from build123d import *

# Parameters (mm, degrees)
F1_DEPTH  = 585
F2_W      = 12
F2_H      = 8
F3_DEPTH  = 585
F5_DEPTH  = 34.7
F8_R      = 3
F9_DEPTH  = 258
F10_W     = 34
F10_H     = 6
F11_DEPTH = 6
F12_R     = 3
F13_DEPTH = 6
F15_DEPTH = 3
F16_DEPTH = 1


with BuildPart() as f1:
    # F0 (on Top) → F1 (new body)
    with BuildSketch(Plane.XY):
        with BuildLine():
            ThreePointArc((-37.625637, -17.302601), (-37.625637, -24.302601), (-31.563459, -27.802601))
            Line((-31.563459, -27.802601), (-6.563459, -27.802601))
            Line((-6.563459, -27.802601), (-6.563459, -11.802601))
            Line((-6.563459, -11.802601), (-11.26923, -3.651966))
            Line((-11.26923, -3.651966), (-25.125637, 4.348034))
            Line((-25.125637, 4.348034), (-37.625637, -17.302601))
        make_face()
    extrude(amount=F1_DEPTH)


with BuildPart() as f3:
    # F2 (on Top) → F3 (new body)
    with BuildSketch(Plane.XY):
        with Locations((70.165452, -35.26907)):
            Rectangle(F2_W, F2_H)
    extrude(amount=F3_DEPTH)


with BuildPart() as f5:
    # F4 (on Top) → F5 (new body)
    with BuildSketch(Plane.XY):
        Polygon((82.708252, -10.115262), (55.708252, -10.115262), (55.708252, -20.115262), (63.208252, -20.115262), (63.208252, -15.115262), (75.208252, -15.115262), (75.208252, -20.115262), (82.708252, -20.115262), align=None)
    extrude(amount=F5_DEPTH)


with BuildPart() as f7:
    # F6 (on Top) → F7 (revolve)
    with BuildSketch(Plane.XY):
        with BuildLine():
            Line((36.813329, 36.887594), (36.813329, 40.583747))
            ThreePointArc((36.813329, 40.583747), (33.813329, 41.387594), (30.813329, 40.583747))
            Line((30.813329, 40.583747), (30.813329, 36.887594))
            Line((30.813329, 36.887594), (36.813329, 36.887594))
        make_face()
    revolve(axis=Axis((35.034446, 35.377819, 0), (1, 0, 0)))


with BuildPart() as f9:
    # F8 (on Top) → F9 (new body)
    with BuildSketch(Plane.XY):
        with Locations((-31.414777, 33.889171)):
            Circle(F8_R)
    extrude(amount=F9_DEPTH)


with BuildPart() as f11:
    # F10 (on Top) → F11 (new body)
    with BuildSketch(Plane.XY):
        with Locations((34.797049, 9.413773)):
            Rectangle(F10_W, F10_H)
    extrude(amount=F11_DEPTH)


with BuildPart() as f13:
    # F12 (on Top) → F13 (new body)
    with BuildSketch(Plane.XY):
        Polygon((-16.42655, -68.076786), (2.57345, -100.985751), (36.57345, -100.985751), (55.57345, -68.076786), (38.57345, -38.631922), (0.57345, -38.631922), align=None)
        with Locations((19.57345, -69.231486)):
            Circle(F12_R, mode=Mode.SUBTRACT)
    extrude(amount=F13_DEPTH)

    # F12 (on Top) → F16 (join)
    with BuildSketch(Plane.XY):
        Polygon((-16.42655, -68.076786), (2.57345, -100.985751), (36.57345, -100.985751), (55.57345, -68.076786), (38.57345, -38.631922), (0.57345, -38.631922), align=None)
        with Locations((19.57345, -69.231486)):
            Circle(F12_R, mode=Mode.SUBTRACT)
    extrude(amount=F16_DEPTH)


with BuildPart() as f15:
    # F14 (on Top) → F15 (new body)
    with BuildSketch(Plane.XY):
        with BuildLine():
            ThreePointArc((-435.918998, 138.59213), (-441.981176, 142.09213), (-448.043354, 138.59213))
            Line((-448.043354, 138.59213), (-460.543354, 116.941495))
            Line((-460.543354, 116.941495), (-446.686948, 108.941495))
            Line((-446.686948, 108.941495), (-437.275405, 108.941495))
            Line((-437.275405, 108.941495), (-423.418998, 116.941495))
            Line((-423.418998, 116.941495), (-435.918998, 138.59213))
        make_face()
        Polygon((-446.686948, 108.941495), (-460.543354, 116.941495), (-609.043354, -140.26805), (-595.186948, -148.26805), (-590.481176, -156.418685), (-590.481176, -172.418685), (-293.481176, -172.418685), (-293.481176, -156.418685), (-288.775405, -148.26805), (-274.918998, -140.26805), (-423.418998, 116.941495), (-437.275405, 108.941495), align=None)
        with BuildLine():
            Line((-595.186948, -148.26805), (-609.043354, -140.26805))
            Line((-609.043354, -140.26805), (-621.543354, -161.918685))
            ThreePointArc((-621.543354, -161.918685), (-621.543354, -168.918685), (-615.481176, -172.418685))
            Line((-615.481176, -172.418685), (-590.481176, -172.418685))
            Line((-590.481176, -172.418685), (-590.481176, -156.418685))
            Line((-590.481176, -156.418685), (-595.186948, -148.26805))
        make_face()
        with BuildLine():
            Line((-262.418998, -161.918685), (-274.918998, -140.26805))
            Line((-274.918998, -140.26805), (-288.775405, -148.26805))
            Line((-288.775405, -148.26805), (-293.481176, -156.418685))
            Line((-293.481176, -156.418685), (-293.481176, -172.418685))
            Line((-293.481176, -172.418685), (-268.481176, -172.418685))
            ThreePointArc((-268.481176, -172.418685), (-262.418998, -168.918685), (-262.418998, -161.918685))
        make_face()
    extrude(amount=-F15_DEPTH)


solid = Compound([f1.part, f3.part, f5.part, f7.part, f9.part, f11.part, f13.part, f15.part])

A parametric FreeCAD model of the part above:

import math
import FreeCAD as App
import Part
import Sketcher
from FreeCAD import Vector
Q = App.Units.Quantity

doc = App.newDocument("Part")
body = doc.addObject("PartDesign::Body", "Body")

# Sketch on XY plane
sketch1 = doc.addObject("Sketcher::SketchObject", "Sketch")
body.addObject(sketch1)
sketch1.AttachmentSupport = (doc.XY_Plane, [""])
sketch1.MapMode = "FlatFace"
sketch1.addGeometry(Part.ArcOfCircle(Part.Circle(Vector(-32, -21, 0), Vector(0, 0, 1), 7), math.radians(150), math.radians(270)), False)
sketch1.addGeometry(Part.LineSegment(Vector(-32, -28, 0), Vector(-7, -28, 0)), False)
sketch1.addGeometry(Part.LineSegment(Vector(-7, -28, 0), Vector(-7, -12, 0)), False)
sketch1.addGeometry(Part.LineSegment(Vector(-7, -12, 0), Vector(-11, -4, 0)), False)
sketch1.addGeometry(Part.LineSegment(Vector(-11, -4, 0), Vector(-25, 4, 0)), False)
sketch1.addGeometry(Part.LineSegment(Vector(-25, 4, 0), Vector(-38, -17, 0)), False)
sketch1.addConstraint(Sketcher.Constraint("Tangent", 0, 2, 1, 1))
sketch1.addConstraint(Sketcher.Constraint("Coincident", 1, 2, 2, 1))
sketch1.addConstraint(Sketcher.Constraint("Coincident", 2, 2, 3, 1))
sketch1.addConstraint(Sketcher.Constraint("Coincident", 3, 2, 4, 1))
sketch1.addConstraint(Sketcher.Constraint("Coincident", 4, 2, 5, 1))
sketch1.addConstraint(Sketcher.Constraint("Tangent", 5, 2, 0, 1))
sketch1.addConstraint(Sketcher.Constraint("Horizontal", 1))
sketch1.addConstraint(Sketcher.Constraint("Vertical", 2))
sketch1.addConstraint(Sketcher.Constraint("Perpendicular", 4, 5))
sketch1.addConstraint(Sketcher.Constraint("Radius", 0, Q("7 mm")))
sketch1.addConstraint(Sketcher.Constraint("DistanceX", 1, 1, 1, 2, Q("25 mm")))
sketch1.addConstraint(Sketcher.Constraint("DistanceY", 2, 1, 2, 2, Q("16 mm")))
sketch1.addConstraint(Sketcher.Constraint("Angle", 3, Q("119.999998 deg")))
sketch1.addConstraint(Sketcher.Constraint("Angle", 4, Q("150.000001 deg")))
sketch1.addConstraint(Sketcher.Constraint("Distance", 4, Q("16 mm")))
sketch1.addConstraint(Sketcher.Constraint("DistanceY", 0, 3, -1, 1, Q("20.802601 mm")))
sketch1.addConstraint(Sketcher.Constraint("DistanceX", 0, 3, -1, 1, Q("31.563459 mm")))
pad1 = doc.addObject("PartDesign::Pad", "Pad")
body.addObject(pad1)
pad1.Profile = sketch1
pad1.Length = 585
body2 = doc.addObject("PartDesign::Body", "Body001")

# Sketch on XY plane
sketch2 = doc.addObject("Sketcher::SketchObject", "Sketch001")
body2.addObject(sketch2)
sketch2.AttachmentSupport = (doc.getObject("XY_Plane001"), [""])
sketch2.MapMode = "FlatFace"
sketch2.addGeometry(Part.LineSegment(Vector(64, -31, 0), Vector(64, -39, 0)), False)
sketch2.addGeometry(Part.LineSegment(Vector(64, -39, 0), Vector(76, -39, 0)), False)
sketch2.addGeometry(Part.LineSegment(Vector(76, -39, 0), Vector(76, -31, 0)), False)
sketch2.addGeometry(Part.LineSegment(Vector(76, -31, 0), Vector(64, -31, 0)), False)
sketch2.addConstraint(Sketcher.Constraint("Coincident", 0, 2, 1, 1))
sketch2.addConstraint(Sketcher.Constraint("Coincident", 1, 2, 2, 1))
sketch2.addConstraint(Sketcher.Constraint("Coincident", 2, 2, 3, 1))
sketch2.addConstraint(Sketcher.Constraint("Coincident", 3, 2, 0, 1))
sketch2.addConstraint(Sketcher.Constraint("Vertical", 0))
sketch2.addConstraint(Sketcher.Constraint("Horizontal", 1))
sketch2.addConstraint(Sketcher.Constraint("Vertical", 2))
sketch2.addConstraint(Sketcher.Constraint("Horizontal", 3))
sketch2.addConstraint(Sketcher.Constraint("DistanceX", 1, 1, 1, 2, Q("12 mm")))
sketch2.addConstraint(Sketcher.Constraint("DistanceY", 0, 2, 0, 1, Q("8 mm")))
sketch2.addConstraint(Sketcher.Constraint("DistanceX", -1, 1, 0, 2, Q("64.165452 mm")))
sketch2.addConstraint(Sketcher.Constraint("DistanceY", 0, 2, -1, 1, Q("39.26907 mm")))
pad2 = doc.addObject("PartDesign::Pad", "Pad001")
body2.addObject(pad2)
pad2.Profile = sketch2
pad2.Length = 585
body3 = doc.addObject("PartDesign::Body", "Body002")

# Sketch on XY plane
sketch3 = doc.addObject("Sketcher::SketchObject", "Sketch002")
body3.addObject(sketch3)
sketch3.AttachmentSupport = (doc.getObject("XY_Plane002"), [""])
sketch3.MapMode = "FlatFace"
sketch3.addGeometry(Part.LineSegment(Vector(83, -10, 0), Vector(56, -10, 0)), False)
sketch3.addGeometry(Part.LineSegment(Vector(56, -10, 0), Vector(56, -20, 0)), False)
sketch3.addGeometry(Part.LineSegment(Vector(56, -20, 0), Vector(63, -20, 0)), False)
sketch3.addGeometry(Part.LineSegment(Vector(63, -20, 0), Vector(63, -15, 0)), False)
sketch3.addGeometry(Part.LineSegment(Vector(63, -15, 0), Vector(75, -15, 0)), False)
sketch3.addGeometry(Part.LineSegment(Vector(75, -15, 0), Vector(75, -20, 0)), False)
sketch3.addGeometry(Part.LineSegment(Vector(75, -20, 0), Vector(83, -20, 0)), False)
sketch3.addGeometry(Part.LineSegment(Vector(83, -20, 0), Vector(83, -10, 0)), False)
sketch3.addConstraint(Sketcher.Constraint("Coincident", 0, 2, 1, 1))
sketch3.addConstraint(Sketcher.Constraint("Coincident", 1, 2, 2, 1))
sketch3.addConstraint(Sketcher.Constraint("Coincident", 2, 2, 3, 1))
sketch3.addConstraint(Sketcher.Constraint("Coincident", 3, 2, 4, 1))
sketch3.addConstraint(Sketcher.Constraint("Coincident", 4, 2, 5, 1))
sketch3.addConstraint(Sketcher.Constraint("Coincident", 5, 2, 6, 1))
sketch3.addConstraint(Sketcher.Constraint("Coincident", 6, 2, 7, 1))
sketch3.addConstraint(Sketcher.Constraint("Coincident", 7, 2, 0, 1))
sketch3.addConstraint(Sketcher.Constraint("Horizontal", 0))
sketch3.addConstraint(Sketcher.Constraint("Vertical", 1))
sketch3.addConstraint(Sketcher.Constraint("Horizontal", 2))
sketch3.addConstraint(Sketcher.Constraint("Vertical", 3))
sketch3.addConstraint(Sketcher.Constraint("Horizontal", 4))
sketch3.addConstraint(Sketcher.Constraint("Vertical", 5))
sketch3.addConstraint(Sketcher.Constraint("Horizontal", 6))
sketch3.addConstraint(Sketcher.Constraint("Vertical", 7))
sketch3.addConstraint(Sketcher.Constraint("Horizontal", 2, 2, 5, 2))
sketch3.addConstraint(Sketcher.Constraint("Equal", 2, 6))
sketch3.addConstraint(Sketcher.Constraint("DistanceX", 0, 2, 0, 1, Q("27 mm")))
sketch3.addConstraint(Sketcher.Constraint("DistanceX", 4, 1, 4, 2, Q("12 mm")))
sketch3.addConstraint(Sketcher.Constraint("DistanceY", 1, 2, 1, 1, Q("10 mm")))
sketch3.addConstraint(Sketcher.Constraint("DistanceY", 3, 1, 3, 2, Q("5 mm")))
sketch3.addConstraint(Sketcher.Constraint("DistanceX", -1, 1, 4, 2, Q("75.208252 mm")))
sketch3.addConstraint(Sketcher.Constraint("DistanceY", 0, 2, -1, 1, Q("10.115262 mm")))
pad3 = doc.addObject("PartDesign::Pad", "Pad002")
body3.addObject(pad3)
pad3.Profile = sketch3
pad3.Length = 34.7
body4 = doc.addObject("PartDesign::Body", "Body003")

# Sketch on XY plane
sketch4 = doc.addObject("Sketcher::SketchObject", "Sketch003")
body4.addObject(sketch4)
sketch4.AttachmentSupport = (doc.getObject("XY_Plane003"), [""])
sketch4.MapMode = "FlatFace"
sketch4.addGeometry(Part.LineSegment(Vector(36.8, 36.9, 0), Vector(36.8, 40.6, 0)), False)
sketch4.addGeometry(Part.ArcOfCircle(Part.Circle(Vector(33.8, 35.4, 0), Vector(0, 0, 1), 6), math.radians(60), math.radians(120)), False)
sketch4.addGeometry(Part.LineSegment(Vector(30.8, 40.6, 0), Vector(30.8, 36.9, 0)), False)
sketch4.addGeometry(Part.LineSegment(Vector(30.8, 36.9, 0), Vector(36.8, 36.9, 0)), False)
sketch4.addGeometry(Part.LineSegment(Vector(30.8, 35.4, 0), Vector(36.8, 35.4, 0)), True)  # axis
sketch4.addConstraint(Sketcher.Constraint("Coincident", 0, 2, 1, 1))
sketch4.addConstraint(Sketcher.Constraint("Coincident", 1, 2, 2, 1))
sketch4.addConstraint(Sketcher.Constraint("Coincident", 2, 2, 3, 1))
sketch4.addConstraint(Sketcher.Constraint("Coincident", 3, 2, 0, 1))
sketch4.addConstraint(Sketcher.Constraint("Vertical", 0))
sketch4.addConstraint(Sketcher.Constraint("Vertical", 2))
sketch4.addConstraint(Sketcher.Constraint("Horizontal", 3))
sketch4.addConstraint(Sketcher.Constraint("Horizontal", 4))
sketch4.addConstraint(Sketcher.Constraint("Horizontal", 0, 2, 1, 2))
sketch4.addConstraint(Sketcher.Constraint("Vertical", 2, 2, 4, 1))
sketch4.addConstraint(Sketcher.Constraint("Vertical", 3, 2, 4, 2))
sketch4.addConstraint(Sketcher.Constraint("DistanceX", 3, 1, 3, 2, Q("6 mm")))
sketch4.addConstraint(Sketcher.Constraint("Radius", 1, Q("6.000004 mm")))
sketch4.addConstraint(Sketcher.Constraint("DistanceY", 0, 1, 0, 2, Q("3.696153 mm")))
sketch4.addConstraint(Sketcher.Constraint("DistanceX", -1, 1, 1, 3, Q("33.813329 mm")))
sketch4.addConstraint(Sketcher.Constraint("DistanceY", -1, 1, 1, 3, Q("35.38759 mm")))
sketch4.addConstraint(Sketcher.Constraint("DistanceY", -1, 1, 4, 1, Q("35.377819 mm")))
revolution = doc.addObject("PartDesign::Revolution", "Revolution")
body4.addObject(revolution)
revolution.Profile = sketch4
revolution.ReferenceAxis = (sketch4, ["Axis0"])
revolution.Angle = 360
body5 = doc.addObject("PartDesign::Body", "Body004")

# Sketch on XY plane
sketch5 = doc.addObject("Sketcher::SketchObject", "Sketch004")
body5.addObject(sketch5)
sketch5.AttachmentSupport = (doc.getObject("XY_Plane004"), [""])
sketch5.MapMode = "FlatFace"
sketch5.addGeometry(Part.Circle(Vector(-31.4, 33.9, 0), Vector(0, 0, 1), 3), False)
sketch5.addConstraint(Sketcher.Constraint("Diameter", 0, Q("6 mm")))
sketch5.addConstraint(Sketcher.Constraint("DistanceY", -1, 1, 0, 3, Q("33.889171 mm")))
sketch5.addConstraint(Sketcher.Constraint("DistanceX", 0, 3, -1, 1, Q("31.414777 mm")))
pad4 = doc.addObject("PartDesign::Pad", "Pad003")
body5.addObject(pad4)
pad4.Profile = sketch5
pad4.Length = 258
body6 = doc.addObject("PartDesign::Body", "Body005")

# Sketch on XY plane
sketch6 = doc.addObject("Sketcher::SketchObject", "Sketch005")
body6.addObject(sketch6)
sketch6.AttachmentSupport = (doc.getObject("XY_Plane005"), [""])
sketch6.MapMode = "FlatFace"
sketch6.addGeometry(Part.LineSegment(Vector(18, 12, 0), Vector(18, 6, 0)), False)
sketch6.addGeometry(Part.LineSegment(Vector(18, 6, 0), Vector(52, 6, 0)), False)
sketch6.addGeometry(Part.LineSegment(Vector(52, 6, 0), Vector(52, 12, 0)), False)
sketch6.addGeometry(Part.LineSegment(Vector(52, 12, 0), Vector(18, 12, 0)), False)
sketch6.addConstraint(Sketcher.Constraint("Coincident", 0, 2, 1, 1))
sketch6.addConstraint(Sketcher.Constraint("Coincident", 1, 2, 2, 1))
sketch6.addConstraint(Sketcher.Constraint("Coincident", 2, 2, 3, 1))
sketch6.addConstraint(Sketcher.Constraint("Coincident", 3, 2, 0, 1))
sketch6.addConstraint(Sketcher.Constraint("Vertical", 0))
sketch6.addConstraint(Sketcher.Constraint("Horizontal", 1))
sketch6.addConstraint(Sketcher.Constraint("Vertical", 2))
sketch6.addConstraint(Sketcher.Constraint("Horizontal", 3))
sketch6.addConstraint(Sketcher.Constraint("DistanceX", 1, 1, 1, 2, Q("34 mm")))
sketch6.addConstraint(Sketcher.Constraint("DistanceY", 0, 2, 0, 1, Q("6 mm")))
sketch6.addConstraint(Sketcher.Constraint("DistanceX", -1, 1, 0, 2, Q("17.797049 mm")))
sketch6.addConstraint(Sketcher.Constraint("DistanceY", -1, 1, 0, 2, Q("6.413773 mm")))
pad5 = doc.addObject("PartDesign::Pad", "Pad004")
body6.addObject(pad5)
pad5.Profile = sketch6
pad5.Length = 6
body7 = doc.addObject("PartDesign::Body", "Body006")

# Sketch on XY plane
sketch7 = doc.addObject("Sketcher::SketchObject", "Sketch006")
body7.addObject(sketch7)
sketch7.AttachmentSupport = (doc.getObject("XY_Plane006"), [""])
sketch7.MapMode = "FlatFace"
sketch7.addGeometry(Part.LineSegment(Vector(-16.4, -68.1, 0), Vector(2.6, -101, 0)), False)
sketch7.addGeometry(Part.LineSegment(Vector(2.6, -101, 0), Vector(36.6, -101, 0)), False)
sketch7.addGeometry(Part.LineSegment(Vector(36.6, -101, 0), Vector(55.6, -68.1, 0)), False)
sketch7.addGeometry(Part.LineSegment(Vector(55.6, -68.1, 0), Vector(38.6, -38.6, 0)), False)
sketch7.addGeometry(Part.LineSegment(Vector(38.6, -38.6, 0), Vector(0.6, -38.6, 0)), False)
sketch7.addGeometry(Part.LineSegment(Vector(0.6, -38.6, 0), Vector(-16.4, -68.1, 0)), False)
sketch7.addGeometry(Part.Circle(Vector(19.6, -69.2, 0), Vector(0, 0, 1), 3), False)
sketch7.addConstraint(Sketcher.Constraint("Coincident", 0, 2, 1, 1))
sketch7.addConstraint(Sketcher.Constraint("Coincident", 1, 2, 2, 1))
sketch7.addConstraint(Sketcher.Constraint("Coincident", 2, 2, 3, 1))
sketch7.addConstraint(Sketcher.Constraint("Coincident", 3, 2, 4, 1))
sketch7.addConstraint(Sketcher.Constraint("Coincident", 4, 2, 5, 1))
sketch7.addConstraint(Sketcher.Constraint("Coincident", 5, 2, 0, 1))
sketch7.addConstraint(Sketcher.Constraint("Horizontal", 1))
sketch7.addConstraint(Sketcher.Constraint("Horizontal", 4))
sketch7.addConstraint(Sketcher.Constraint("Parallel", 0, 3))
sketch7.addConstraint(Sketcher.Constraint("Parallel", 2, 5))
sketch7.addConstraint(Sketcher.Constraint("Horizontal", 2, 2, 5, 2))
sketch7.addConstraint(Sketcher.Constraint("Equal", 0, 2))
sketch7.addConstraint(Sketcher.Constraint("Diameter", 6, Q("6 mm")))
sketch7.addConstraint(Sketcher.Constraint("DistanceX", 1, 1, 1, 2, Q("34 mm")))
sketch7.addConstraint(Sketcher.Constraint("DistanceX", 4, 2, 4, 1, Q("38 mm")))
sketch7.addConstraint(Sketcher.Constraint("Angle", 0, Q("-60 deg")))
sketch7.addConstraint(Sketcher.Constraint("Distance", 0, Q("38 mm")))
sketch7.addConstraint(Sketcher.Constraint("DistanceX", 0, 2, 6, 3, Q("17 mm")))
sketch7.addConstraint(Sketcher.Constraint("DistanceY", 6, 3, 2, 2, Q("1.1547 mm")))
sketch7.addConstraint(Sketcher.Constraint("DistanceX", -1, 1, 6, 3, Q("19.57345 mm")))
sketch7.addConstraint(Sketcher.Constraint("DistanceY", 0, 2, -1, 1, Q("100.985751 mm")))
pad6 = doc.addObject("PartDesign::Pad", "Pad005")
body7.addObject(pad6)
pad6.Profile = sketch7
pad6.Length = 6

# Sketch on XY plane
sketch8 = doc.addObject("Sketcher::SketchObject", "Sketch007")
body7.addObject(sketch8)
sketch8.AttachmentSupport = (doc.getObject("XY_Plane006"), [""])
sketch8.MapMode = "FlatFace"
sketch8.addGeometry(Part.LineSegment(Vector(-16.4, -68.1, 0), Vector(2.6, -101, 0)), False)
sketch8.addGeometry(Part.LineSegment(Vector(2.6, -101, 0), Vector(36.6, -101, 0)), False)
sketch8.addGeometry(Part.LineSegment(Vector(36.6, -101, 0), Vector(55.6, -68.1, 0)), False)
sketch8.addGeometry(Part.LineSegment(Vector(55.6, -68.1, 0), Vector(38.6, -38.6, 0)), False)
sketch8.addGeometry(Part.LineSegment(Vector(38.6, -38.6, 0), Vector(0.6, -38.6, 0)), False)
sketch8.addGeometry(Part.LineSegment(Vector(0.6, -38.6, 0), Vector(-16.4, -68.1, 0)), False)
sketch8.addGeometry(Part.Circle(Vector(19.6, -69.2, 0), Vector(0, 0, 1), 3), False)
sketch8.addConstraint(Sketcher.Constraint("Coincident", 0, 2, 1, 1))
sketch8.addConstraint(Sketcher.Constraint("Coincident", 1, 2, 2, 1))
sketch8.addConstraint(Sketcher.Constraint("Coincident", 2, 2, 3, 1))
sketch8.addConstraint(Sketcher.Constraint("Coincident", 3, 2, 4, 1))
sketch8.addConstraint(Sketcher.Constraint("Coincident", 4, 2, 5, 1))
sketch8.addConstraint(Sketcher.Constraint("Coincident", 5, 2, 0, 1))
sketch8.addConstraint(Sketcher.Constraint("Horizontal", 1))
sketch8.addConstraint(Sketcher.Constraint("Horizontal", 4))
sketch8.addConstraint(Sketcher.Constraint("Parallel", 0, 3))
sketch8.addConstraint(Sketcher.Constraint("Parallel", 2, 5))
sketch8.addConstraint(Sketcher.Constraint("Horizontal", 2, 2, 5, 2))
sketch8.addConstraint(Sketcher.Constraint("Equal", 0, 2))
sketch8.addConstraint(Sketcher.Constraint("Diameter", 6, Q("6 mm")))
sketch8.addConstraint(Sketcher.Constraint("DistanceX", 1, 1, 1, 2, Q("34 mm")))
sketch8.addConstraint(Sketcher.Constraint("DistanceX", 4, 2, 4, 1, Q("38 mm")))
sketch8.addConstraint(Sketcher.Constraint("Angle", 0, Q("-60 deg")))
sketch8.addConstraint(Sketcher.Constraint("Distance", 0, Q("38 mm")))
sketch8.addConstraint(Sketcher.Constraint("DistanceX", 0, 2, 6, 3, Q("17 mm")))
sketch8.addConstraint(Sketcher.Constraint("DistanceY", 6, 3, 2, 2, Q("1.1547 mm")))
sketch8.addConstraint(Sketcher.Constraint("DistanceX", -1, 1, 6, 3, Q("19.57345 mm")))
sketch8.addConstraint(Sketcher.Constraint("DistanceY", 0, 2, -1, 1, Q("100.985751 mm")))
pad7 = doc.addObject("PartDesign::Pad", "Pad006")
body7.addObject(pad7)
pad7.Profile = sketch8
pad7.Length = 1
body8 = doc.addObject("PartDesign::Body", "Body007")

# Sketch on XY plane
sketch9 = doc.addObject("Sketcher::SketchObject", "Sketch008")
body8.addObject(sketch9)
sketch9.AttachmentSupport = (doc.getObject("XY_Plane007"), [""])
sketch9.MapMode = "FlatFace"
sketch9.addGeometry(Part.ArcOfCircle(Part.Circle(Vector(-442, 135, 0), Vector(0, 0, 1), 7), math.radians(30), math.radians(150)), False)
sketch9.addGeometry(Part.LineSegment(Vector(-448, 139, 0), Vector(-461, 117, 0)), False)
sketch9.addGeometry(Part.LineSegment(Vector(-461, 117, 0), Vector(-609, -140, 0)), False)
sketch9.addGeometry(Part.LineSegment(Vector(-609, -140, 0), Vector(-622, -162, 0)), False)
sketch9.addGeometry(Part.ArcOfCircle(Part.Circle(Vector(-615, -165, 0), Vector(0, 0, 1), 7), math.radians(150), math.radians(270)), False)
sketch9.addGeometry(Part.LineSegment(Vector(-615, -172, 0), Vector(-268, -172, 0)), False)
sketch9.addGeometry(Part.ArcOfCircle(Part.Circle(Vector(-268, -165, 0), Vector(0, 0, 1), 7), math.radians(-90), math.radians(30)), False)
sketch9.addGeometry(Part.LineSegment(Vector(-262, -162, 0), Vector(-275, -140, 0)), False)
sketch9.addGeometry(Part.LineSegment(Vector(-275, -140, 0), Vector(-423, 117, 0)), False)
sketch9.addGeometry(Part.LineSegment(Vector(-423, 117, 0), Vector(-436, 139, 0)), False)
sketch9.addConstraint(Sketcher.Constraint("Tangent", 0, 2, 1, 1))
sketch9.addConstraint(Sketcher.Constraint("Coincident", 1, 2, 2, 1))
sketch9.addConstraint(Sketcher.Constraint("Coincident", 2, 2, 3, 1))
sketch9.addConstraint(Sketcher.Constraint("Tangent", 3, 2, 4, 1))
sketch9.addConstraint(Sketcher.Constraint("Tangent", 4, 2, 5, 1))
sketch9.addConstraint(Sketcher.Constraint("Tangent", 5, 2, 6, 1))
sketch9.addConstraint(Sketcher.Constraint("Tangent", 6, 2, 7, 1))
sketch9.addConstraint(Sketcher.Constraint("Coincident", 7, 2, 8, 1))
sketch9.addConstraint(Sketcher.Constraint("Coincident", 8, 2, 9, 1))
sketch9.addConstraint(Sketcher.Constraint("Tangent", 9, 2, 0, 1))
sketch9.addConstraint(Sketcher.Constraint("Horizontal", 5))
sketch9.addConstraint(Sketcher.Constraint("Equal", 0, 4))
sketch9.addConstraint(Sketcher.Constraint("Equal", 4, 6))
sketch9.addConstraint(Sketcher.Constraint("Parallel", 1, 2))
sketch9.addConstraint(Sketcher.Constraint("Parallel", 2, 3))
sketch9.addConstraint(Sketcher.Constraint("Parallel", 7, 8))
sketch9.addConstraint(Sketcher.Constraint("Parallel", 8, 9))
sketch9.addConstraint(Sketcher.Constraint("Horizontal", 3, 2, 6, 2))
sketch9.addConstraint(Sketcher.Constraint("Horizontal", 2, 2, 7, 2))
sketch9.addConstraint(Sketcher.Constraint("Horizontal", 1, 2, 8, 2))
sketch9.addConstraint(Sketcher.Constraint("Equal", 1, 3))
sketch9.addConstraint(Sketcher.Constraint("Radius", 0, Q("7 mm")))
sketch9.addConstraint(Sketcher.Constraint("DistanceX", 5, 1, 5, 2, Q("347 mm")))
sketch9.addConstraint(Sketcher.Constraint("Angle", 1, Q("-120 deg")))
sketch9.addConstraint(Sketcher.Constraint("Distance", 1, Q("25 mm")))
sketch9.addConstraint(Sketcher.Constraint("DistanceX", 7, 2, -1, 1, Q("274.918998 mm")))
sketch9.addConstraint(Sketcher.Constraint("DistanceY", -1, 1, 0, 3, Q("135.09213 mm")))
pad8 = doc.addObject("PartDesign::Pad", "Pad007")
body8.addObject(pad8)
pad8.Profile = sketch9
pad8.Length = 3
pad8.Reversed = True

doc.recompute()
